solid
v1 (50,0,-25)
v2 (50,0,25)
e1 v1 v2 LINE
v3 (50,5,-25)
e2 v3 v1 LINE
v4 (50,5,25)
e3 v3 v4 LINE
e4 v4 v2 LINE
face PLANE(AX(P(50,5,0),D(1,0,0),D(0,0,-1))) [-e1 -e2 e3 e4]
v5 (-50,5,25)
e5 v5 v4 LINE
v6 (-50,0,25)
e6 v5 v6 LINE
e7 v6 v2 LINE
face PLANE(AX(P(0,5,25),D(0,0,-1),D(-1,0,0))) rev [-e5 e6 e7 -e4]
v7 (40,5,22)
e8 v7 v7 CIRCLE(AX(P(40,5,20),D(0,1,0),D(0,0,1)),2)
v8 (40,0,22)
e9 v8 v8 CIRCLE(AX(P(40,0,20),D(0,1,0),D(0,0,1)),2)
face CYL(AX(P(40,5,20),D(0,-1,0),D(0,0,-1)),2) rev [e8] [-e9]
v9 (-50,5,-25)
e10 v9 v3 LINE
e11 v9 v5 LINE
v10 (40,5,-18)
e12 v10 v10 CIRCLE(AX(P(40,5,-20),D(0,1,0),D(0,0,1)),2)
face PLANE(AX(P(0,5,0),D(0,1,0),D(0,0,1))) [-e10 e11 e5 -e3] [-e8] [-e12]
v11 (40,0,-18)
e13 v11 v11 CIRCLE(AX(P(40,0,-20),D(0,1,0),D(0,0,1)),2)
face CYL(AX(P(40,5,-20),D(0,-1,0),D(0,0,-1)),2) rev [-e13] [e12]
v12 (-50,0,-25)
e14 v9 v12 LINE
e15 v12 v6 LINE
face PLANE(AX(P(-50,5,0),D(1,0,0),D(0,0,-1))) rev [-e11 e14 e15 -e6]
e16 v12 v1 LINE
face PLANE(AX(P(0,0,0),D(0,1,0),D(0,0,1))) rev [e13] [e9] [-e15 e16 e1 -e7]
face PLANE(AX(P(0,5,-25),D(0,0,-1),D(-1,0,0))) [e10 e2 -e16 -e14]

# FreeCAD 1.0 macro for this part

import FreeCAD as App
import Part
import Sketcher

V = App.Vector


def add_polygon(sketch, points):
    """Adds a closed chain of lines whose ends are joined by coincident constraints."""
    first, n = sketch.GeometryCount, len(points)
    for a, b in zip(points, points[1:] + points[:1]):
        sketch.addGeometry(Part.LineSegment(App.Vector(*a, 0), App.Vector(*b, 0)), False)
    for i in range(n):
        sketch.addConstraint(Sketcher.Constraint("Coincident", first + i, 2, first + (i + 1) % n, 1))

doc = App.newDocument("Part")
body = doc.addObject("PartDesign::Body", "Body")

sketch1 = body.newObject("Sketcher::SketchObject", "Sketch")
sketch1.AttachmentSupport = (doc.getObject("XZ_Plane"), [""])
sketch1.MapMode = "FlatFace"
add_polygon(sketch1, [(-50, -25), (-50, 25), (50, 25), (50, -25)])
sketch1.addGeometry(Part.Circle(V(40, 20, 0), V(0, 0, 1), 2), False)
sketch1.addGeometry(Part.Circle(V(40, -20, 0), V(0, 0, 1), 2), False)
sketch1.addConstraint([
    Sketcher.Constraint("Vertical", 0),
    Sketcher.Constraint("Horizontal", 1),
    Sketcher.Constraint("Vertical", 2),
    Sketcher.Constraint("Horizontal", 3),
    Sketcher.Constraint("Equal", 4, 5),
    Sketcher.Constraint("Symmetric", 0, 2, 2, 2, -1, 1),
    Sketcher.Constraint("Symmetric", 4, 3, 5, 3, -1),
    Sketcher.Constraint("Diameter", 4, 4.0),
    Sketcher.Constraint("DistanceX", 1, 1, 1, 2, 100.0),
    Sketcher.Constraint("DistanceY", 0, 1, 0, 2, 50.0),
    Sketcher.Constraint("DistanceX", -1, 1, 4, 3, 40.0),
    Sketcher.Constraint("DistanceY", -1, 1, 4, 3, 20.0),
])
pad1 = body.newObject("PartDesign::Pad", "Pad")
pad1.Profile = sketch1
pad1.Length = 5
pad1.Reversed = True

doc.recompute()
